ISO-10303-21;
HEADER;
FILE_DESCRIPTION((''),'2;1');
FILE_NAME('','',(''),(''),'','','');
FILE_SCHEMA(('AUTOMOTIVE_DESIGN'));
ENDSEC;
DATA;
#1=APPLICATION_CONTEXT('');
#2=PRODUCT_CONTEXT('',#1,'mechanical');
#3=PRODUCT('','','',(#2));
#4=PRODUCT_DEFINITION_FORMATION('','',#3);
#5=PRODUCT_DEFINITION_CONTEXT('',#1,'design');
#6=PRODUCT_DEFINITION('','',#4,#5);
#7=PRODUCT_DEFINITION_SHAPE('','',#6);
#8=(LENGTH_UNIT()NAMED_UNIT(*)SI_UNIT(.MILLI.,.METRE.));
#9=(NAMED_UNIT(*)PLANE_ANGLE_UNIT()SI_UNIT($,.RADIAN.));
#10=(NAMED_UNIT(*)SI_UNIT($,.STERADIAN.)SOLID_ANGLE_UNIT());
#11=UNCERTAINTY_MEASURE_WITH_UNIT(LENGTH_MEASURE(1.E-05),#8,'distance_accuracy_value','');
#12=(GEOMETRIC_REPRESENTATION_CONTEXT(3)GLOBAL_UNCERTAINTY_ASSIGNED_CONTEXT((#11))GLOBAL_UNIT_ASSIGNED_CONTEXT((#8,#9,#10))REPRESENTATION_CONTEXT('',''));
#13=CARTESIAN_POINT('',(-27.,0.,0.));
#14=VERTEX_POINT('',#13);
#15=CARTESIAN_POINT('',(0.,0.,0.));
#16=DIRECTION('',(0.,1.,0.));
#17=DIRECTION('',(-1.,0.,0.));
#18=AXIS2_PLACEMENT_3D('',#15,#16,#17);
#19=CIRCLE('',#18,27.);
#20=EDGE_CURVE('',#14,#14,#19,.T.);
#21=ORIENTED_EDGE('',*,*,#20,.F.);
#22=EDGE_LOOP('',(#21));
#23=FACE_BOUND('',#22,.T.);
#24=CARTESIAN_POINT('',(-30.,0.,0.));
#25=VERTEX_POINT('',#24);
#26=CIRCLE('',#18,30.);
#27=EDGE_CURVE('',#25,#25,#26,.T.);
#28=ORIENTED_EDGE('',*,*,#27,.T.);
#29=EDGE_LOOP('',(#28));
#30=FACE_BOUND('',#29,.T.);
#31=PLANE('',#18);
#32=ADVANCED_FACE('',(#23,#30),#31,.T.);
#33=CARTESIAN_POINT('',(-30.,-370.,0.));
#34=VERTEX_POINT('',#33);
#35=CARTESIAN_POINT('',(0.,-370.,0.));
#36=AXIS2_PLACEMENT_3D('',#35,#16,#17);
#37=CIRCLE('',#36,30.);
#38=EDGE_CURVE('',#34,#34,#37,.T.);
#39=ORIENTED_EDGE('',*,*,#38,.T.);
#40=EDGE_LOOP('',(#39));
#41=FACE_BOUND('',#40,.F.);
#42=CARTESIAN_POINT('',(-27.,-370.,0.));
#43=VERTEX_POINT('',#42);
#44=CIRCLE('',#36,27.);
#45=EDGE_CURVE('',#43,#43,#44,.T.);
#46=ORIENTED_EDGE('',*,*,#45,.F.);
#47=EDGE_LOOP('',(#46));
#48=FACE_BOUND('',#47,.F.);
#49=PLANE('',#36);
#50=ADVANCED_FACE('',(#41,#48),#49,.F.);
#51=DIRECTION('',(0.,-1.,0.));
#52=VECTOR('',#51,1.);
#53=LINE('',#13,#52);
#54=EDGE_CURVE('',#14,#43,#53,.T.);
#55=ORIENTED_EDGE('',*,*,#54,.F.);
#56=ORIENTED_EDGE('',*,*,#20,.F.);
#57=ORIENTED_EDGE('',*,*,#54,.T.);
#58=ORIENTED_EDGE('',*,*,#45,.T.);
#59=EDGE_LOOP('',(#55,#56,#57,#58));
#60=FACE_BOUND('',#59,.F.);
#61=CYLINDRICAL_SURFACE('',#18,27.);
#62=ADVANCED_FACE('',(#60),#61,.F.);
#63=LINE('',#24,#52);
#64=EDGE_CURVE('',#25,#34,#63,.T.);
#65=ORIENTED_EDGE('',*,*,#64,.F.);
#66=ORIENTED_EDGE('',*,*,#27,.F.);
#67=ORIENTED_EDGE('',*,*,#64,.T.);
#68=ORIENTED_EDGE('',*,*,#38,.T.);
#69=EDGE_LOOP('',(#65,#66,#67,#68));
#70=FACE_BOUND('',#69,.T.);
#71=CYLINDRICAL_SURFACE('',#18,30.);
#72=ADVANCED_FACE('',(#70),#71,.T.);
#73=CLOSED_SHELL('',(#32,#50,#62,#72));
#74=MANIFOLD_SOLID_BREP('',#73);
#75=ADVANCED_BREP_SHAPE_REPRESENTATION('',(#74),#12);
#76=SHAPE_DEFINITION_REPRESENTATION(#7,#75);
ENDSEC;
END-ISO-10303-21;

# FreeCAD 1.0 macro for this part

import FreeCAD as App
import Part
import Sketcher

V = App.Vector

doc = App.newDocument("Part")
body = doc.addObject("PartDesign::Body", "Body")

# Sketch on XZ plane
sketch1 = body.newObject("Sketcher::SketchObject", "Sketch")
sketch1.AttachmentSupport = (doc.getObject("XZ_Plane"), [""])
sketch1.MapMode = "FlatFace"
sketch1.addGeometry([
    Part.Circle(V(0, 0, 0), V(0, 0, 1), 30),
    Part.Circle(V(0, 0, 0), V(0, 0, 1), 27),
], False)
sketch1.addConstraint([
    Sketcher.Constraint("Coincident", 0, 3, -1, 1),
    Sketcher.Constraint("Coincident", 1, 3, -1, 1),
    Sketcher.Constraint("Diameter", 0, 60.0),
    Sketcher.Constraint("Diameter", 1, 54.0),
])
pad1 = body.newObject("PartDesign::Pad", "Pad")
pad1.Profile = sketch1
pad1.Length = 370

doc.recompute()
